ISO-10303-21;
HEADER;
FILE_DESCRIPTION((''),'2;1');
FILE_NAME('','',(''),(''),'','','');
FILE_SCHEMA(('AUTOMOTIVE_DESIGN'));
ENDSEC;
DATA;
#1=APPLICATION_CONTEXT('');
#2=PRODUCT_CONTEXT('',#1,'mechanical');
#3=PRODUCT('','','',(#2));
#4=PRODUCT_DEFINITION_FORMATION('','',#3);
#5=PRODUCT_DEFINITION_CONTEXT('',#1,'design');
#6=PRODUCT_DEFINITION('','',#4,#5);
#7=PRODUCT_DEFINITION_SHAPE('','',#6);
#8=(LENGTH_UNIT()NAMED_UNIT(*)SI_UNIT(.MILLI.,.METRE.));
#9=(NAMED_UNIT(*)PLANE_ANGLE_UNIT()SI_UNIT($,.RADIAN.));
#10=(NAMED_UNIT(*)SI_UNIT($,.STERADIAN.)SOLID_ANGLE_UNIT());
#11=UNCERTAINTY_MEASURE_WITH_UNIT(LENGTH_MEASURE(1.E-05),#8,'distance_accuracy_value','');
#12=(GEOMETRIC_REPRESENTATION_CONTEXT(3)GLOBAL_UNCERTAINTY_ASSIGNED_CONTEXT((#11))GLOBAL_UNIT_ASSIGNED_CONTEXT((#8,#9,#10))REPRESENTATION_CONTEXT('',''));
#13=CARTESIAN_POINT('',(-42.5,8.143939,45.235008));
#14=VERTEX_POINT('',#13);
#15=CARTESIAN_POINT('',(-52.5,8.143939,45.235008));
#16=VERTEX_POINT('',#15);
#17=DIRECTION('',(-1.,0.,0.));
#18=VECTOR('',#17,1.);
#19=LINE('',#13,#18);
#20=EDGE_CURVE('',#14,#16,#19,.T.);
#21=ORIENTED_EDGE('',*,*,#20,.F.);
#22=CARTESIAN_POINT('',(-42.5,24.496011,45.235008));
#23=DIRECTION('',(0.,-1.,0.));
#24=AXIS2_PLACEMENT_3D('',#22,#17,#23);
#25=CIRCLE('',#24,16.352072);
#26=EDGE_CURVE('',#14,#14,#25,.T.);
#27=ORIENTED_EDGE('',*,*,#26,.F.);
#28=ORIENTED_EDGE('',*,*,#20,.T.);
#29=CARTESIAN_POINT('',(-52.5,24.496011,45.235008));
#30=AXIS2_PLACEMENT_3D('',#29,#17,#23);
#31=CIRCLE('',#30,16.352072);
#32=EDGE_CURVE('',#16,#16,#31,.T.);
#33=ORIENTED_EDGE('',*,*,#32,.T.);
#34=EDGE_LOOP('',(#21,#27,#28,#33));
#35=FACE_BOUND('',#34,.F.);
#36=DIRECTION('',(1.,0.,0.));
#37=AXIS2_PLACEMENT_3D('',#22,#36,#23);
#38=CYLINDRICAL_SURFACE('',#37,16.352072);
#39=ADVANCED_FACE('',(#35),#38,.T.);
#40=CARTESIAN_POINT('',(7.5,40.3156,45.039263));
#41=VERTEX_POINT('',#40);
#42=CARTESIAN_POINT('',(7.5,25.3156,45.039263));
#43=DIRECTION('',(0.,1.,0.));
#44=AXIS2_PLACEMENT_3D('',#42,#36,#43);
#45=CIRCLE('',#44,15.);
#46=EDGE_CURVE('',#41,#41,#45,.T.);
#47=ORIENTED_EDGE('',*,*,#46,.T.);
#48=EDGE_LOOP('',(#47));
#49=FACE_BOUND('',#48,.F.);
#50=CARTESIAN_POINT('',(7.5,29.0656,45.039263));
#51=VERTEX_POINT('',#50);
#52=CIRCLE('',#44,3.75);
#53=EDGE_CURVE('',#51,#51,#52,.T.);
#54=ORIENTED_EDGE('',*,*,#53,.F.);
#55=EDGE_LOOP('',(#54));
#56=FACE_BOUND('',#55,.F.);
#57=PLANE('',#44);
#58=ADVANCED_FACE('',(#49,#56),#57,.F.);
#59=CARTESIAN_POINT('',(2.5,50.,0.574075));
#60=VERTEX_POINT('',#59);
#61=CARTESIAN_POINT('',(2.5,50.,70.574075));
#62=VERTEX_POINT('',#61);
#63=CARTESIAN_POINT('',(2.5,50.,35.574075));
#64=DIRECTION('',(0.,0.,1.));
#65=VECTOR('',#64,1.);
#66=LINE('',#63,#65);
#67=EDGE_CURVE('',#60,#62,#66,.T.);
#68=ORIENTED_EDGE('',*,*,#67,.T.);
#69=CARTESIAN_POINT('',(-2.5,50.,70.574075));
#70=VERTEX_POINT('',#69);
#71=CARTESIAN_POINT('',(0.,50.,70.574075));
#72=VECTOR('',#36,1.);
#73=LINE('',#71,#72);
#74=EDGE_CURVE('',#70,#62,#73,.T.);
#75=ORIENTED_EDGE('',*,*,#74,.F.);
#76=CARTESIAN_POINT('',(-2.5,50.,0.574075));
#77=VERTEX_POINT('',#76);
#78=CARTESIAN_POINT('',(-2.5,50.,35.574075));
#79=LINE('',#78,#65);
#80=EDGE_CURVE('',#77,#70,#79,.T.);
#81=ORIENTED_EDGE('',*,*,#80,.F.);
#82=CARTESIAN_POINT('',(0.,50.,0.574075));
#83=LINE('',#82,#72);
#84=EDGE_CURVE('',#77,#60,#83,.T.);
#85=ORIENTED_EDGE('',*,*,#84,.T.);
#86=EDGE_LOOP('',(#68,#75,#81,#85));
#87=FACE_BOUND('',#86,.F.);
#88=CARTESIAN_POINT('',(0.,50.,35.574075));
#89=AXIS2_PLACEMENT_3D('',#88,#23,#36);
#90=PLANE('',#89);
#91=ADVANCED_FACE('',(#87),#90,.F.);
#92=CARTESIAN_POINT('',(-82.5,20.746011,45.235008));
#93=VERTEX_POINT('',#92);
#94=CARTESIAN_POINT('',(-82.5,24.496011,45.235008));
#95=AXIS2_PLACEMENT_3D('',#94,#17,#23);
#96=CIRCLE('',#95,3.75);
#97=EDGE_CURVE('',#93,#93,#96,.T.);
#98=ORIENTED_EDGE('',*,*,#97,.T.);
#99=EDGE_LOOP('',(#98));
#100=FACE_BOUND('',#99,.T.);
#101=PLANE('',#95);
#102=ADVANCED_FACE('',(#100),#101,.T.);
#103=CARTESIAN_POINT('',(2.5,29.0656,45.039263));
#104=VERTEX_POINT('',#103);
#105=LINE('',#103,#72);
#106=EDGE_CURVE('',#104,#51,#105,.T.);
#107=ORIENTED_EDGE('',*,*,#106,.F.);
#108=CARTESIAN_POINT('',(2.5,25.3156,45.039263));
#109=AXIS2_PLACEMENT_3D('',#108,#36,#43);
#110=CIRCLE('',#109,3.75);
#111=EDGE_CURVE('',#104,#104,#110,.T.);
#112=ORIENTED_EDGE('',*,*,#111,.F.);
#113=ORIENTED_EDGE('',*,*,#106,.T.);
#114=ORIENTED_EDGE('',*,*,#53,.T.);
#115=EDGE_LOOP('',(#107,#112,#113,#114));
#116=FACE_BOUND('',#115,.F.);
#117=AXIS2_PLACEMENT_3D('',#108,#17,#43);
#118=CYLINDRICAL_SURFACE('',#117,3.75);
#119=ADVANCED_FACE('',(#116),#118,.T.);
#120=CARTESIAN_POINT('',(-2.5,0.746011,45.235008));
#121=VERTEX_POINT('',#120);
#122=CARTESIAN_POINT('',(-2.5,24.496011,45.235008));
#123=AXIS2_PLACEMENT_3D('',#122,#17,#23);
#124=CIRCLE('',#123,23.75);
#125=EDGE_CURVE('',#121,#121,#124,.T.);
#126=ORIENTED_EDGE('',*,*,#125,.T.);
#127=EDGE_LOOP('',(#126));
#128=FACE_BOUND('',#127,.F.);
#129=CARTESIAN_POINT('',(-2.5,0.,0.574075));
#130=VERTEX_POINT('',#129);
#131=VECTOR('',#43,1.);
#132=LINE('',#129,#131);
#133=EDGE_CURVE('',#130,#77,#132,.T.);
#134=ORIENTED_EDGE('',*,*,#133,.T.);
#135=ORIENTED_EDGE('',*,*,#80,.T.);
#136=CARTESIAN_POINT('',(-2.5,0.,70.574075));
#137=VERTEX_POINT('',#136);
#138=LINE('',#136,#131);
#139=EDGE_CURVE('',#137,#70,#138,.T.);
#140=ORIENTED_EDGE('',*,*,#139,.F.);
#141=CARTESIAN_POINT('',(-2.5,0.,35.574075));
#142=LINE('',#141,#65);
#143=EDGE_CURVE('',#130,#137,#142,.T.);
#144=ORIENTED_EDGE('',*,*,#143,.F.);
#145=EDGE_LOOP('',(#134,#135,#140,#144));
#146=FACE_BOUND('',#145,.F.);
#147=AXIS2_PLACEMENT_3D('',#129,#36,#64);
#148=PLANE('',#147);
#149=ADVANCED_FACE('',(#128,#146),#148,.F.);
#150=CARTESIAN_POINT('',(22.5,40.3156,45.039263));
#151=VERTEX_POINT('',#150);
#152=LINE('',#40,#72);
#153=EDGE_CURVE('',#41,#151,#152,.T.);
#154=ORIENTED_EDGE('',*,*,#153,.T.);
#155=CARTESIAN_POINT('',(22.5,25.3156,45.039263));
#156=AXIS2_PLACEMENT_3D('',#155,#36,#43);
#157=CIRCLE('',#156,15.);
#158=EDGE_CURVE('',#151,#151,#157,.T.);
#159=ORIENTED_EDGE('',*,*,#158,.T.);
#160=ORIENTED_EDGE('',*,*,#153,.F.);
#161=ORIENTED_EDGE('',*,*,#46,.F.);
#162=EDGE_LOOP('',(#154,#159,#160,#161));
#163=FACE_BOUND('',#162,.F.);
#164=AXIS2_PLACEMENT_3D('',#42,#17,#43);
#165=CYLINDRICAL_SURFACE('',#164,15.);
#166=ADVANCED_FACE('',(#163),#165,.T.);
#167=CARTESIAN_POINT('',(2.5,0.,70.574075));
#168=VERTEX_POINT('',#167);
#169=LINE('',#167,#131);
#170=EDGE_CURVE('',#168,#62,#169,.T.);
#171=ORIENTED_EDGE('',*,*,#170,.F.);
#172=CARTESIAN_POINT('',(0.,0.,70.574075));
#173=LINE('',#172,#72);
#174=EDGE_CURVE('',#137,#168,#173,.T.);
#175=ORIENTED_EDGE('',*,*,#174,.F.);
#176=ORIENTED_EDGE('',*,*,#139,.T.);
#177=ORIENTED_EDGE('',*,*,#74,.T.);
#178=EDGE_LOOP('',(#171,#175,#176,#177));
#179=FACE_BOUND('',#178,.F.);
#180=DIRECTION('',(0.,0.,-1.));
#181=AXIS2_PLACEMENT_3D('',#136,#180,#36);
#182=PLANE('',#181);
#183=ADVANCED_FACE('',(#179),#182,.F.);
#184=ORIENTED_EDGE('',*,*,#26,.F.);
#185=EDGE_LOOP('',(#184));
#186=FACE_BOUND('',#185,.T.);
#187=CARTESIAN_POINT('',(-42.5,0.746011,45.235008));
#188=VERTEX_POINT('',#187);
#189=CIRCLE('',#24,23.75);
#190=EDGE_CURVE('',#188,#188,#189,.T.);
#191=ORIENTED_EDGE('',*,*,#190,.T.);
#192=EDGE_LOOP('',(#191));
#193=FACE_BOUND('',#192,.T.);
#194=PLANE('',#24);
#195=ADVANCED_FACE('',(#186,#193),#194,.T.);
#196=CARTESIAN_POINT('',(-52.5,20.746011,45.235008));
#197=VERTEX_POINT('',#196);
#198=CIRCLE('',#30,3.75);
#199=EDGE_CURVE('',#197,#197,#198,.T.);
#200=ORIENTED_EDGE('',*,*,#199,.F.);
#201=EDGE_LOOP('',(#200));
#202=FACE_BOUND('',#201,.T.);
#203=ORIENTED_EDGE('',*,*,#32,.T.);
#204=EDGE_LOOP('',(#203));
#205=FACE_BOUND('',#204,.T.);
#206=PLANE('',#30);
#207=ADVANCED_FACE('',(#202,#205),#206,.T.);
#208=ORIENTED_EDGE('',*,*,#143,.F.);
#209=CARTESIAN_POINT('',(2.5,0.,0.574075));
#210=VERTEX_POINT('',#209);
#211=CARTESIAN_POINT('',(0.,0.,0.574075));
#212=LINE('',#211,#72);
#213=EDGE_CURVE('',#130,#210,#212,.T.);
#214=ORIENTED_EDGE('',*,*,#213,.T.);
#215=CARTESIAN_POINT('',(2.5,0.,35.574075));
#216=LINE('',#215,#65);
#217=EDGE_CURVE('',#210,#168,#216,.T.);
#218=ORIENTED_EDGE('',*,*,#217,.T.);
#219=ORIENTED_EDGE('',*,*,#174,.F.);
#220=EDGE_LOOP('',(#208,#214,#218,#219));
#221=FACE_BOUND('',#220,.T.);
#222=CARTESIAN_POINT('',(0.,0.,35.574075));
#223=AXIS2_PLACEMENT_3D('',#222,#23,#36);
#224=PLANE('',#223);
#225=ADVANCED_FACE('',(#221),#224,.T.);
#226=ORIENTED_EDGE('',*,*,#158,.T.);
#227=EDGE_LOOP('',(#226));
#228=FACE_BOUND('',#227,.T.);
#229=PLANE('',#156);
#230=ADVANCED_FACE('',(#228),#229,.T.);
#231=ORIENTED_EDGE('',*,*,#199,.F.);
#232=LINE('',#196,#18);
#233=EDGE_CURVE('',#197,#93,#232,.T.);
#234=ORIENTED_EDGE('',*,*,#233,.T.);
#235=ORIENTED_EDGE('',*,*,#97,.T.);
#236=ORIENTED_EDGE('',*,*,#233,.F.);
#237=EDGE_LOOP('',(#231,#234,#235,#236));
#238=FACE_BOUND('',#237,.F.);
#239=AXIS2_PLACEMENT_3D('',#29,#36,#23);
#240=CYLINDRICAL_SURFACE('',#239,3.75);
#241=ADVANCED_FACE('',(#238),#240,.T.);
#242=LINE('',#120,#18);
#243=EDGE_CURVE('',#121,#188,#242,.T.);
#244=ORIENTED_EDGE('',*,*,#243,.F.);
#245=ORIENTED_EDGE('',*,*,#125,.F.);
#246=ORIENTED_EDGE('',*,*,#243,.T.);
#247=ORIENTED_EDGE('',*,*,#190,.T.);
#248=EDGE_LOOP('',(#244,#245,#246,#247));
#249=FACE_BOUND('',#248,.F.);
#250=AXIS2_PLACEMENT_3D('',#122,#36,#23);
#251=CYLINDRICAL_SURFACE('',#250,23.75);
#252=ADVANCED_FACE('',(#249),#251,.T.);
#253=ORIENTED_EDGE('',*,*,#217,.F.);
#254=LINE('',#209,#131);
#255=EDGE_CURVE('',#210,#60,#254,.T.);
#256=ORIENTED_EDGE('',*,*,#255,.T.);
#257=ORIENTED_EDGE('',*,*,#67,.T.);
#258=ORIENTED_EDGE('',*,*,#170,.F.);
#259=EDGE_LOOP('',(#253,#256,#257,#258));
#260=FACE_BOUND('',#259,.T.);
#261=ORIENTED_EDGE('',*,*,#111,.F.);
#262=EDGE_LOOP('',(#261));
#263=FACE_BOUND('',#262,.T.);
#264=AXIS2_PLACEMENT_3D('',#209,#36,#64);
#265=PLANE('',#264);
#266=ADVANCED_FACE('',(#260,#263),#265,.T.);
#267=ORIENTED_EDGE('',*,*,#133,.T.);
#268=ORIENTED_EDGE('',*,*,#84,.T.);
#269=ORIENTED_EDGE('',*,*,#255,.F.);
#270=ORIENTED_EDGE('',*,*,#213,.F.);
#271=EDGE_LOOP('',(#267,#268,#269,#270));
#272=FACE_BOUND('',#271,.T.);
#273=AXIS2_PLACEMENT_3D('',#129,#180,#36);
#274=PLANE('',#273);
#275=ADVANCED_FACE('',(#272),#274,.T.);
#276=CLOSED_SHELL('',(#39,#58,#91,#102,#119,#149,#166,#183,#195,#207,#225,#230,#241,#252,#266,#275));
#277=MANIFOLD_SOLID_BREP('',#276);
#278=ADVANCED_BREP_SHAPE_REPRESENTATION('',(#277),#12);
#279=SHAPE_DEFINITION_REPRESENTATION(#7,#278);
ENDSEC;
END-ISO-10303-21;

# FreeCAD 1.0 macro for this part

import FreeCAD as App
import Part
import Sketcher
Q = App.Units.Quantity


def add_polygon(sketch, points):
    """Adds a closed chain of lines whose ends are joined by coincident constraints."""
    first, n = sketch.GeometryCount, len(points)
    for a, b in zip(points, points[1:] + points[:1]):
        sketch.addGeometry(Part.LineSegment(App.Vector(*a, 0), App.Vector(*b, 0)), False)
    for i in range(n):
        sketch.addConstraint(Sketcher.Constraint("Coincident", first + i, 2, first + (i + 1) % n, 1))

doc = App.newDocument("Part")
params = doc.addObject("Spreadsheet::Sheet", "Params")
for row, (alias, value) in enumerate([
    ("sketch1_width", "5 mm"),
    ("sketch1_height", "70 mm"),
    ("pad1_length", "50 mm"),
    ("sketch2_diameter", "47.5 mm"),
    ("pad2_length", "40 mm"),
    ("pad3_length", "10 mm"),
    ("sketch4_diameter", "7.5 mm"),
    ("pad4_length", "30 mm"),
    ("sketch5_diameter", "7.5 mm"),
    ("pad5_length", "5 mm"),
    ("sketch6_diameter", "30 mm"),
    ("pad6_length", "15 mm"),
], start=1):
    params.set(f"A{row}", alias)
    params.set(f"B{row}", "=" + value)
    params.setAlias(f"B{row}", alias)

body = doc.addObject("PartDesign::Body", "Body")

sketch1 = doc.addObject("Sketcher::SketchObject", "Sketch")
body.addObject(sketch1)
sketch1.AttachmentSupport = (doc.XZ_Plane, [""])
sketch1.MapMode = "FlatFace"
add_polygon(sketch1, [(-2, 71), (-2, 1), (2, 1), (2, 71)])
sketch1.addConstraint(Sketcher.Constraint("Vertical", 0))
sketch1.addConstraint(Sketcher.Constraint("Horizontal", 1))
sketch1.addConstraint(Sketcher.Constraint("Vertical", 2))
sketch1.addConstraint(Sketcher.Constraint("Horizontal", 3))
sketch1.addConstraint(Sketcher.Constraint("DistanceX", 1, 1, 1, 2, Q("5 mm")))
sketch1.addConstraint(Sketcher.Constraint("DistanceY", 0, 2, 0, 1, Q("70 mm")))
sketch1.addConstraint(Sketcher.Constraint("DistanceX", 0, 2, -1, 1, Q("2.5 mm")))
sketch1.addConstraint(Sketcher.Constraint("DistanceY", -1, 1, 0, 2, Q("0.574075 mm")))
sketch1.setExpression("Constraints[8]", "Params.sketch1_width")
sketch1.setExpression("Constraints[9]", "Params.sketch1_height")
pad1 = doc.addObject("PartDesign::Pad", "Pad")
body.addObject(pad1)
pad1.Profile = sketch1
pad1.setExpression("Length", "Params.pad1_length")
pad1.Reversed = True

sketch2 = doc.addObject("Sketcher::SketchObject", "Sketch001")
body.addObject(sketch2)
sketch2.AttachmentSupport = (doc.YZ_Plane, [""])
sketch2.MapMode = "FlatFace"
sketch2.AttachmentOffset = App.Placement(App.Vector(0, 0, -2.5), App.Rotation())
sketch2.addGeometry(Part.Circle(App.Vector(24, 45, 0), App.Vector(0, 0, 1), 24), False)
sketch2.addConstraint(Sketcher.Constraint("Diameter", 0, Q("47.5 mm")))
sketch2.addConstraint(Sketcher.Constraint("DistanceX", -1, 1, 0, 3, Q("24.496011 mm")))
sketch2.addConstraint(Sketcher.Constraint("DistanceY", -1, 1, 0, 3, Q("45.235008 mm")))
sketch2.setExpression("Constraints[0]", "Params.sketch2_diameter")
pad2 = doc.addObject("PartDesign::Pad", "Pad001")
body.addObject(pad2)
pad2.Profile = sketch2
pad2.setExpression("Length", "Params.pad2_length")
pad2.Reversed = True

sketch3 = doc.addObject("Sketcher::SketchObject", "Sketch002")
body.addObject(sketch3)
sketch3.AttachmentSupport = (doc.YZ_Plane, [""])
sketch3.MapMode = "FlatFace"
sketch3.AttachmentOffset = App.Placement(App.Vector(0, 0, -42.5), App.Rotation())
sketch3.addGeometry(Part.Circle(App.Vector(24, 45, 0), App.Vector(0, 0, 1), 16), False)
sketch3.addConstraint(Sketcher.Constraint("Diameter", 0, Q("32.704144 mm")))
sketch3.addConstraint(Sketcher.Constraint("DistanceX", -1, 1, 0, 3, Q("24.496011 mm")))
sketch3.addConstraint(Sketcher.Constraint("DistanceY", -1, 1, 0, 3, Q("45.235008 mm")))
pad3 = doc.addObject("PartDesign::Pad", "Pad002")
body.addObject(pad3)
pad3.Profile = sketch3
pad3.setExpression("Length", "Params.pad3_length")
pad3.Reversed = True

sketch4 = doc.addObject("Sketcher::SketchObject", "Sketch003")
body.addObject(sketch4)
sketch4.AttachmentSupport = (doc.YZ_Plane, [""])
sketch4.MapMode = "FlatFace"
sketch4.AttachmentOffset = App.Placement(App.Vector(0, 0, -52.5), App.Rotation())
sketch4.addGeometry(Part.Circle(App.Vector(24.5, 45.2, 0), App.Vector(0, 0, 1), 3.8), False)
sketch4.addConstraint(Sketcher.Constraint("Diameter", 0, Q("7.5 mm")))
sketch4.addConstraint(Sketcher.Constraint("DistanceX", -1, 1, 0, 3, Q("24.496011 mm")))
sketch4.addConstraint(Sketcher.Constraint("DistanceY", -1, 1, 0, 3, Q("45.235008 mm")))
sketch4.setExpression("Constraints[0]", "Params.sketch4_diameter")
pad4 = doc.addObject("PartDesign::Pad", "Pad003")
body.addObject(pad4)
pad4.Profile = sketch4
pad4.setExpression("Length", "Params.pad4_length")
pad4.Reversed = True

sketch5 = doc.addObject("Sketcher::SketchObject", "Sketch004")
body.addObject(sketch5)
sketch5.AttachmentSupport = (doc.YZ_Plane, [""])
sketch5.MapMode = "FlatFace"
sketch5.AttachmentOffset = App.Placement(App.Vector(0, 0, 2.5), App.Rotation())
sketch5.addGeometry(Part.Circle(App.Vector(25.3, 45, 0), App.Vector(0, 0, 1), 3.8), False)
sketch5.addConstraint(Sketcher.Constraint("Diameter", 0, Q("7.5 mm")))
sketch5.addConstraint(Sketcher.Constraint("DistanceX", -1, 1, 0, 3, Q("25.3156 mm")))
sketch5.addConstraint(Sketcher.Constraint("DistanceY", -1, 1, 0, 3, Q("45.039263 mm")))
sketch5.setExpression("Constraints[0]", "Params.sketch5_diameter")
pad5 = doc.addObject("PartDesign::Pad", "Pad004")
body.addObject(pad5)
pad5.Profile = sketch5
pad5.setExpression("Length", "Params.pad5_length")

sketch6 = doc.addObject("Sketcher::SketchObject", "Sketch005")
body.addObject(sketch6)
sketch6.AttachmentSupport = (doc.YZ_Plane, [""])
sketch6.MapMode = "FlatFace"
sketch6.AttachmentOffset = App.Placement(App.Vector(0, 0, 7.5), App.Rotation())
sketch6.addGeometry(Part.Circle(App.Vector(25, 45, 0), App.Vector(0, 0, 1), 15), False)
sketch6.addConstraint(Sketcher.Constraint("Diameter", 0, Q("30 mm")))
sketch6.addConstraint(Sketcher.Constraint("DistanceX", -1, 1, 0, 3, Q("25.3156 mm")))
sketch6.addConstraint(Sketcher.Constraint("DistanceY", -1, 1, 0, 3, Q("45.039263 mm")))
sketch6.setExpression("Constraints[0]", "Params.sketch6_diameter")
pad6 = doc.addObject("PartDesign::Pad", "Pad005")
body.addObject(pad6)
pad6.Profile = sketch6
pad6.setExpression("Length", "Params.pad6_length")

doc.recompute()
